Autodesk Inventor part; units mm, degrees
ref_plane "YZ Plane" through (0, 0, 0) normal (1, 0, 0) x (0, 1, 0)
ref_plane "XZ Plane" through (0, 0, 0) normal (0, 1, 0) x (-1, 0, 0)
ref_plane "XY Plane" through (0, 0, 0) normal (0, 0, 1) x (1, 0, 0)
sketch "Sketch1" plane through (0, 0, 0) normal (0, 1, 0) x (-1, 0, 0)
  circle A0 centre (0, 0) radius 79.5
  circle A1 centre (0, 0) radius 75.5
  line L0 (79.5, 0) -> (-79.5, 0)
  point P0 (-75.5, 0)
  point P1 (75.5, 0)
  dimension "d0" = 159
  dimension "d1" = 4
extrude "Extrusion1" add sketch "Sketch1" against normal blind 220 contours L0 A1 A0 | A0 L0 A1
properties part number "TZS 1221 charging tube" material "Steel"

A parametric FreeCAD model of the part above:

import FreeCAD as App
import Part
import Sketcher

V = App.Vector

doc = App.newDocument("Part")
params = doc.addObject("Spreadsheet::Sheet", "Params")
for row, (alias, value) in enumerate([
    ("sketch1_diameter", "159 mm"),
    ("sketch1_diameter2", "151 mm"),
    ("pad1_length", "220 mm"),
], start=1):
    params.set(f"A{row}", alias)
    params.set(f"B{row}", "=" + value)
    params.setAlias(f"B{row}", alias)

body = doc.addObject("PartDesign::Body", "Body")

sketch1 = body.newObject("Sketcher::SketchObject", "Sketch")
sketch1.AttachmentSupport = (doc.getObject("XZ_Plane"), [""])
sketch1.MapMode = "FlatFace"
sketch1.addGeometry([
    Part.Circle(V(0, 0, 0), V(0, 0, 1), 80),
    Part.Circle(V(0, 0, 0), V(0, 0, 1), 76),
], False)
sketch1.addConstraint([
    Sketcher.Constraint("Coincident", 0, 3, -1, 1),
    Sketcher.Constraint("Coincident", 1, 3, -1, 1),
    Sketcher.Constraint("Diameter", 0, 159.0),
    Sketcher.Constraint("Diameter", 1, 151.0),
])
sketch1.setExpression("Constraints[2]", "Params.sketch1_diameter")
sketch1.setExpression("Constraints[3]", "Params.sketch1_diameter2")
pad1 = body.newObject("PartDesign::Pad", "Pad")
pad1.Profile = sketch1
pad1.setExpression("Length", "Params.pad1_length")

doc.recompute()
